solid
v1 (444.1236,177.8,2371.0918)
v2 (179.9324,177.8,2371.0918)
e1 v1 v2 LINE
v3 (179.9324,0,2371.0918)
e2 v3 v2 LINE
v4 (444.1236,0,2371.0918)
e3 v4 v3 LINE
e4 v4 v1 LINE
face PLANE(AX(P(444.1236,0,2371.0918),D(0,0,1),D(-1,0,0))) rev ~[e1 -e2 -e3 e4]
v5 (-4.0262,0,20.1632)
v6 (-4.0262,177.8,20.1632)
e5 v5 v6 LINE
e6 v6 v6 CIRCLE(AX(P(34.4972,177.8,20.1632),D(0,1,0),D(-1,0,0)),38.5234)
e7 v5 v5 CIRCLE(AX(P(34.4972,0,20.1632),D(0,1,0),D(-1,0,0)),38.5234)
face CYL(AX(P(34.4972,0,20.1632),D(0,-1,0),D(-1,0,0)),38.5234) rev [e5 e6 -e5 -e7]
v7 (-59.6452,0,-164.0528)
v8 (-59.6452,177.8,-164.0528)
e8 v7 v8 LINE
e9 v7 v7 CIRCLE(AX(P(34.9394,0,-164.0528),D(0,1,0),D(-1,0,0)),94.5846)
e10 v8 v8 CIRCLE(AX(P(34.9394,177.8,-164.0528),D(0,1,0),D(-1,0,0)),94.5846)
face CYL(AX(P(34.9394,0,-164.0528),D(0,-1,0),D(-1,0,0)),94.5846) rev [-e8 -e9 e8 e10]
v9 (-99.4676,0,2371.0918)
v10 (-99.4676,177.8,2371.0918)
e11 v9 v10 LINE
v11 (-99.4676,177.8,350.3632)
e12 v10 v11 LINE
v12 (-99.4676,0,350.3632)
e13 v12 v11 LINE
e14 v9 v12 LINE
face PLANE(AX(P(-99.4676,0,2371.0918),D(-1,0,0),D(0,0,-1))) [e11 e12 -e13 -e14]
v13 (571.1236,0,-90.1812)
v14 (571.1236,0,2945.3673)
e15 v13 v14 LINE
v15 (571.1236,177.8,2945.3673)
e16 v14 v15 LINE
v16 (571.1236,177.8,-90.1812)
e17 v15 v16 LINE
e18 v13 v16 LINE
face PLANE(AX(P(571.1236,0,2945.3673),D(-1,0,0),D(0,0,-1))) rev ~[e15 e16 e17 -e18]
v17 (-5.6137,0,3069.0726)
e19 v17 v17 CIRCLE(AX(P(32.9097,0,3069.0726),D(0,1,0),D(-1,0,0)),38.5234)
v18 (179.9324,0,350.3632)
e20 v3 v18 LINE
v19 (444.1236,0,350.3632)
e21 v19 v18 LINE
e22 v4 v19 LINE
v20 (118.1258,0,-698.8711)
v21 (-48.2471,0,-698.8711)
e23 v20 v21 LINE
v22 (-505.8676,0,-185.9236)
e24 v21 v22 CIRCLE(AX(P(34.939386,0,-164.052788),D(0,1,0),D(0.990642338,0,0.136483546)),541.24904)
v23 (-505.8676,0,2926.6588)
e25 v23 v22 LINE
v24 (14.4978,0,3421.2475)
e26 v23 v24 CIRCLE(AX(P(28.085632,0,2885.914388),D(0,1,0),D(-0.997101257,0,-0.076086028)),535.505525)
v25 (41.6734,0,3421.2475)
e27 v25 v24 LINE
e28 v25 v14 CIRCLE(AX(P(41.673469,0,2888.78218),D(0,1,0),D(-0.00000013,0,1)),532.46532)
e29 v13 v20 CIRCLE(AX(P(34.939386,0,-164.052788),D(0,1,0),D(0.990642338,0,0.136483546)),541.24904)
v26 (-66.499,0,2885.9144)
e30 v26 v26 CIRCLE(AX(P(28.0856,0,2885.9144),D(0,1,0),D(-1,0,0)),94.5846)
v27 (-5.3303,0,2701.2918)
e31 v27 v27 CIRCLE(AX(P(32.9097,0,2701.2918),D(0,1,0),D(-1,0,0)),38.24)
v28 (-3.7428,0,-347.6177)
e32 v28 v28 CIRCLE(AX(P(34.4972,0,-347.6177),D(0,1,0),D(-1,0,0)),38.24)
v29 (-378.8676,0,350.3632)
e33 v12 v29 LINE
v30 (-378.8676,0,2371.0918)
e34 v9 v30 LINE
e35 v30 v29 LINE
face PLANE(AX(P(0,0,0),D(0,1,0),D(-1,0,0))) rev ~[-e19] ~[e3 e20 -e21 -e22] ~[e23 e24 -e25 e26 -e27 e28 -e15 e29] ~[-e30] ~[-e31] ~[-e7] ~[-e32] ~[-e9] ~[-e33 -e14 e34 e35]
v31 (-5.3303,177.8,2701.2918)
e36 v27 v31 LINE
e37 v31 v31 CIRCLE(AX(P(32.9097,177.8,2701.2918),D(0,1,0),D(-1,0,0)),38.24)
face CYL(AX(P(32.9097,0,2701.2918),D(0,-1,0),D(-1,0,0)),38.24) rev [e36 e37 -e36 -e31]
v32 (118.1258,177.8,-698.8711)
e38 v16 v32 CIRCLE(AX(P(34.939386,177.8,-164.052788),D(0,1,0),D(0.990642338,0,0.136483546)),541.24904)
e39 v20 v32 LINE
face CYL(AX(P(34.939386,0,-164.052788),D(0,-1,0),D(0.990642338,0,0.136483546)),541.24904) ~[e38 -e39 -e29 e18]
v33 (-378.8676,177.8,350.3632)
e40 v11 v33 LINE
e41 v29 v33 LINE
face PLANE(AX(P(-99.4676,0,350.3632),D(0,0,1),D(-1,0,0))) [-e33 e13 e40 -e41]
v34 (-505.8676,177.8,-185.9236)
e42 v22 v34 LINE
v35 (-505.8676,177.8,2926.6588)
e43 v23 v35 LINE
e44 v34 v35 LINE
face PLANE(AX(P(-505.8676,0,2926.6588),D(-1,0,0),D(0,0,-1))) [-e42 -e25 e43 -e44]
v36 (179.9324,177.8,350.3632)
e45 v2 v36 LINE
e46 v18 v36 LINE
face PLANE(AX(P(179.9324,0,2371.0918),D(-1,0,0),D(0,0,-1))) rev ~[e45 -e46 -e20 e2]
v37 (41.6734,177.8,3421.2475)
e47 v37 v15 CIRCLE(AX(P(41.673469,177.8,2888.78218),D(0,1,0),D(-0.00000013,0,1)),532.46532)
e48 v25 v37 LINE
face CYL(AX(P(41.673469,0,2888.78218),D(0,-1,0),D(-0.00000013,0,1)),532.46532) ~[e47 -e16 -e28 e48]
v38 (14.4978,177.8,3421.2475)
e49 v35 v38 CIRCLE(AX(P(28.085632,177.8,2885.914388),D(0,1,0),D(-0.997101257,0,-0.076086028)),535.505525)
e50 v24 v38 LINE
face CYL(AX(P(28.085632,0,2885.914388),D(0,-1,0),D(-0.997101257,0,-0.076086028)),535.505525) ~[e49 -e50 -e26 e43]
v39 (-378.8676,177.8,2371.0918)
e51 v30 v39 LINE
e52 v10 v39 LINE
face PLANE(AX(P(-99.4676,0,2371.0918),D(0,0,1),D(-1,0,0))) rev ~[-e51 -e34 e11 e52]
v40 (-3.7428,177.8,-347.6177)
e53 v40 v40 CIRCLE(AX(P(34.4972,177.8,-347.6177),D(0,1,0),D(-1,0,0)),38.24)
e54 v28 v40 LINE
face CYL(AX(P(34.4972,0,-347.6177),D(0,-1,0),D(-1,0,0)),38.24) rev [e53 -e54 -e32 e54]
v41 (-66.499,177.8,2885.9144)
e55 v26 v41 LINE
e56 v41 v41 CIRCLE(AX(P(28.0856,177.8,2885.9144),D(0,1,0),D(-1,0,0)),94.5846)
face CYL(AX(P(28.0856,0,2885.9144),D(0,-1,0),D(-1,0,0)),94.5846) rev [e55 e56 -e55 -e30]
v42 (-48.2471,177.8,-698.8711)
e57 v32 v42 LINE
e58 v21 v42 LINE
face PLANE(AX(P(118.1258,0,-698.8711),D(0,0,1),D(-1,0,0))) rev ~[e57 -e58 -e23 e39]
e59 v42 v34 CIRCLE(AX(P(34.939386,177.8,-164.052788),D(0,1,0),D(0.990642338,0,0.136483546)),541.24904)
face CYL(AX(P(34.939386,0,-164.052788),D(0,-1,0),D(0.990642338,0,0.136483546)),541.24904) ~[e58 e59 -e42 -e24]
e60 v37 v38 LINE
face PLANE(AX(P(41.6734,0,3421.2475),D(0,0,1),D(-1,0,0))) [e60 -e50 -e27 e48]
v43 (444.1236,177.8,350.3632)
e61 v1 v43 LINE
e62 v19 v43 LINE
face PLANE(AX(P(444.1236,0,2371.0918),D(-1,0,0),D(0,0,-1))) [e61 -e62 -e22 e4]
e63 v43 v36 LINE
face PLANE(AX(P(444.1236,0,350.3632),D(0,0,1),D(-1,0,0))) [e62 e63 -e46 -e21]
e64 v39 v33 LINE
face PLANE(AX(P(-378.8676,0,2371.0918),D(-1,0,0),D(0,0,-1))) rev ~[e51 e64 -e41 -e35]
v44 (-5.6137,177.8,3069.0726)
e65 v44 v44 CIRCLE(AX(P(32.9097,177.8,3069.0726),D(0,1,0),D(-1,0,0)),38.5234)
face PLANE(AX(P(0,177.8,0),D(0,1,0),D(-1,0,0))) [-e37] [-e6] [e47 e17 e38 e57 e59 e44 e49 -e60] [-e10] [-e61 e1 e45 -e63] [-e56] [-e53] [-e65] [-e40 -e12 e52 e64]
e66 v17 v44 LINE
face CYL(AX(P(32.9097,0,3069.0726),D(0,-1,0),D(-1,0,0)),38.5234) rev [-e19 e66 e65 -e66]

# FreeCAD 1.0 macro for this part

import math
import FreeCAD as App
import Part
import Sketcher
Q = App.Units.Quantity


def add_polygon(sketch, points):
    """Adds a closed chain of lines whose ends are joined by coincident constraints."""
    first, n = sketch.GeometryCount, len(points)
    for a, b in zip(points, points[1:] + points[:1]):
        sketch.addGeometry(Part.LineSegment(App.Vector(*a, 0), App.Vector(*b, 0)), False)
    for i in range(n):
        sketch.addConstraint(Sketcher.Constraint("Coincident", first + i, 2, first + (i + 1) % n, 1))

doc = App.newDocument("Part")
params = doc.addObject("Spreadsheet::Sheet", "Params")
for row, (alias, value) in enumerate([
    ("sketch1_width", "11 in"),
    ("pad1_length", "7 in"),
], start=1):
    params.set(f"A{row}", alias)
    params.set(f"B{row}", "=" + value)
    params.setAlias(f"B{row}", alias)

body = doc.addObject("PartDesign::Body", "Body")

sketch1 = body.newObject("Sketcher::SketchObject", "Sketch")
sketch1.AttachmentSupport = (doc.getObject("XZ_Plane"), [""])
sketch1.MapMode = "FlatFace"
sketch1.addGeometry(Part.LineSegment(App.Vector(14, 3421, 0), App.Vector(42, 3421, 0)), False)
sketch1.addGeometry(Part.ArcOfCircle(Part.Circle(App.Vector(42, 2889, 0), App.Vector(0, 0, 1), 532), math.radians(6), math.radians(90)), False)
sketch1.addGeometry(Part.LineSegment(App.Vector(571, 2945, 0), App.Vector(571, -90, 0)), False)
sketch1.addGeometry(Part.ArcOfCircle(Part.Circle(App.Vector(35, -164, 0), App.Vector(0, 0, 1), 541), math.radians(-81), math.radians(8)), False)
sketch1.addGeometry(Part.LineSegment(App.Vector(118, -699, 0), App.Vector(-48, -699, 0)), False)
sketch1.addGeometry(Part.ArcOfCircle(Part.Circle(App.Vector(35, -164, 0), App.Vector(0, 0, 1), 541), math.radians(-178), math.radians(-99)), False)
sketch1.addGeometry(Part.LineSegment(App.Vector(-506, -186, 0), App.Vector(-506, 2927, 0)), False)
sketch1.addGeometry(Part.ArcOfCircle(Part.Circle(App.Vector(28, 2886, 0), App.Vector(0, 0, 1), 536), math.radians(91), math.radians(176)), False)
add_polygon(sketch1, [(-99, 2371), (-379, 2371), (-379, 350), (-99, 350)])
add_polygon(sketch1, [(444, 2371), (180, 2371), (180, 350), (444, 350)])
sketch1.addGeometry(Part.Circle(App.Vector(33, 2701, 0), App.Vector(0, 0, 1), 38), False)
sketch1.addGeometry(Part.Circle(App.Vector(28, 2886, 0), App.Vector(0, 0, 1), 95), False)
sketch1.addGeometry(Part.Circle(App.Vector(33, 3069, 0), App.Vector(0, 0, 1), 39), False)
sketch1.addGeometry(Part.Circle(App.Vector(35, -164, 0), App.Vector(0, 0, 1), 95), False)
sketch1.addGeometry(Part.Circle(App.Vector(34, -348, 0), App.Vector(0, 0, 1), 38), False)
sketch1.addGeometry(Part.Circle(App.Vector(34, 20, 0), App.Vector(0, 0, 1), 39), False)
sketch1.addConstraint(Sketcher.Constraint("Tangent", 0, 2, 1, 2))
sketch1.addConstraint(Sketcher.Constraint("Coincident", 1, 1, 2, 1))
sketch1.addConstraint(Sketcher.Constraint("Coincident", 2, 2, 3, 2))
sketch1.addConstraint(Sketcher.Constraint("Coincident", 3, 1, 4, 1))
sketch1.addConstraint(Sketcher.Constraint("Coincident", 4, 2, 5, 2))
sketch1.addConstraint(Sketcher.Constraint("Coincident", 5, 1, 6, 1))
sketch1.addConstraint(Sketcher.Constraint("Coincident", 6, 2, 7, 2))
sketch1.addConstraint(Sketcher.Constraint("Coincident", 7, 1, 0, 1))
sketch1.addConstraint(Sketcher.Constraint("Horizontal", 0))
sketch1.addConstraint(Sketcher.Constraint("Vertical", 2))
sketch1.addConstraint(Sketcher.Constraint("Horizontal", 4))
sketch1.addConstraint(Sketcher.Constraint("Vertical", 6))
sketch1.addConstraint(Sketcher.Constraint("Horizontal", 8))
sketch1.addConstraint(Sketcher.Constraint("Vertical", 9))
sketch1.addConstraint(Sketcher.Constraint("Horizontal", 10))
sketch1.addConstraint(Sketcher.Constraint("Vertical", 11))
sketch1.addConstraint(Sketcher.Constraint("Horizontal", 12))
sketch1.addConstraint(Sketcher.Constraint("Vertical", 13))
sketch1.addConstraint(Sketcher.Constraint("Horizontal", 14))
sketch1.addConstraint(Sketcher.Constraint("Vertical", 15))
sketch1.addConstraint(Sketcher.Constraint("Coincident", 5, 3, 3, 3))
sketch1.addConstraint(Sketcher.Constraint("Coincident", 17, 3, 7, 3))
sketch1.addConstraint(Sketcher.Constraint("Coincident", 19, 3, 3, 3))
sketch1.addConstraint(Sketcher.Constraint("Equal", 3, 5))
sketch1.addConstraint(Sketcher.Constraint("Equal", 17, 19))
sketch1.addConstraint(Sketcher.Constraint("Equal", 16, 20))
sketch1.addConstraint(Sketcher.Constraint("Equal", 18, 21))
sketch1.addConstraint(Sketcher.Constraint("Horizontal", 11, 2, 12, 2))
sketch1.addConstraint(Sketcher.Constraint("Horizontal", 10, 2, 13, 2))
sketch1.addConstraint(Sketcher.Constraint("Vertical", 16, 3, 18, 3))
sketch1.addConstraint(Sketcher.Constraint("Vertical", 20, 3, 21, 3))
sketch1.addConstraint(Sketcher.Constraint("DistanceX", 8, 2, 8, 1, Q("11 in")))
sketch1.addConstraint(Sketcher.Constraint("DistanceY", 8, 2, 16, 3, Q("13 in")))
sketch1.addConstraint(Sketcher.Constraint("DistanceX", 6, 2, 8, 2, Q("5 in")))
sketch1.addConstraint(Sketcher.Constraint("DistanceY", 21, 3, 9, 2, Q("13 in")))
sketch1.addConstraint(Sketcher.Constraint("DistanceX", 11, 2, 12, 2, Q("11 in")))
sketch1.addConstraint(Sketcher.Constraint("DistanceX", 14, 2, 2, 2, Q("5 in")))
sketch1.addConstraint(Sketcher.Constraint("Diameter", 17, Q("7.4476 in")))
sketch1.addConstraint(Sketcher.Constraint("Radius", 1, Q("20.9632 in")))
sketch1.addConstraint(Sketcher.Constraint("Radius", 7, Q("21.0829 in")))
sketch1.addConstraint(Sketcher.Constraint("Diameter", 16, Q("76.48 mm")))
sketch1.addConstraint(Sketcher.Constraint("Diameter", 18, Q("77.0468 mm")))
sketch1.addConstraint(Sketcher.Constraint("Radius", 3, Q("541.249 mm")))
sketch1.addConstraint(Sketcher.Constraint("DistanceX", 5, 1, 20, 3, Q("21.2742 in")))
sketch1.addConstraint(Sketcher.Constraint("DistanceX", 6, 2, 18, 3, Q("21.2117 in")))
sketch1.addConstraint(Sketcher.Constraint("DistanceX", 5, 1, -1, 1, Q("505.8676 mm")))
sketch1.addConstraint(Sketcher.Constraint("DistanceX", 5, 1, 3, 3, Q("540.807 mm")))
sketch1.addConstraint(Sketcher.Constraint("DistanceX", 6, 2, 7, 3, Q("533.9532 mm")))
sketch1.addConstraint(Sketcher.Constraint("DistanceX", 0, 1, 0, 2, Q("1.0699 in")))
sketch1.addConstraint(Sketcher.Constraint("DistanceX", 4, 2, 4, 1, Q("166.373 mm")))
sketch1.addConstraint(Sketcher.Constraint("DistanceX", 12, 2, 12, 1, Q("264.1912 mm")))
sketch1.addConstraint(Sketcher.Constraint("DistanceY", 2, 2, 2, 1, Q("3035.5485 mm")))
sketch1.addConstraint(Sketcher.Constraint("DistanceY", 6, 1, 6, 2, Q("3112.5824 mm")))
sketch1.addConstraint(Sketcher.Constraint("DistanceY", 9, 2, 9, 1, Q("2020.7286 mm")))
sketch1.addConstraint(Sketcher.Constraint("DistanceY", 3, 1, -1, 1, Q("27.5146 in")))
sketch1.addConstraint(Sketcher.Constraint("DistanceY", 16, 3, 7, 3, Q("7.2686 in")))
sketch1.addConstraint(Sketcher.Constraint("DistanceY", 3, 3, 18, 3, Q("127.2884 in")))
sketch1.addConstraint(Sketcher.Constraint("DistanceY", 20, 3, 16, 3, Q("120.0358 in")))
sketch1.setExpression("Constraints[39]", "Params.sketch1_width")
pad1 = body.newObject("PartDesign::Pad", "Pad")
pad1.Profile = sketch1
pad1.setExpression("Length", "Params.pad1_length")
pad1.Reversed = True

doc.recompute()
